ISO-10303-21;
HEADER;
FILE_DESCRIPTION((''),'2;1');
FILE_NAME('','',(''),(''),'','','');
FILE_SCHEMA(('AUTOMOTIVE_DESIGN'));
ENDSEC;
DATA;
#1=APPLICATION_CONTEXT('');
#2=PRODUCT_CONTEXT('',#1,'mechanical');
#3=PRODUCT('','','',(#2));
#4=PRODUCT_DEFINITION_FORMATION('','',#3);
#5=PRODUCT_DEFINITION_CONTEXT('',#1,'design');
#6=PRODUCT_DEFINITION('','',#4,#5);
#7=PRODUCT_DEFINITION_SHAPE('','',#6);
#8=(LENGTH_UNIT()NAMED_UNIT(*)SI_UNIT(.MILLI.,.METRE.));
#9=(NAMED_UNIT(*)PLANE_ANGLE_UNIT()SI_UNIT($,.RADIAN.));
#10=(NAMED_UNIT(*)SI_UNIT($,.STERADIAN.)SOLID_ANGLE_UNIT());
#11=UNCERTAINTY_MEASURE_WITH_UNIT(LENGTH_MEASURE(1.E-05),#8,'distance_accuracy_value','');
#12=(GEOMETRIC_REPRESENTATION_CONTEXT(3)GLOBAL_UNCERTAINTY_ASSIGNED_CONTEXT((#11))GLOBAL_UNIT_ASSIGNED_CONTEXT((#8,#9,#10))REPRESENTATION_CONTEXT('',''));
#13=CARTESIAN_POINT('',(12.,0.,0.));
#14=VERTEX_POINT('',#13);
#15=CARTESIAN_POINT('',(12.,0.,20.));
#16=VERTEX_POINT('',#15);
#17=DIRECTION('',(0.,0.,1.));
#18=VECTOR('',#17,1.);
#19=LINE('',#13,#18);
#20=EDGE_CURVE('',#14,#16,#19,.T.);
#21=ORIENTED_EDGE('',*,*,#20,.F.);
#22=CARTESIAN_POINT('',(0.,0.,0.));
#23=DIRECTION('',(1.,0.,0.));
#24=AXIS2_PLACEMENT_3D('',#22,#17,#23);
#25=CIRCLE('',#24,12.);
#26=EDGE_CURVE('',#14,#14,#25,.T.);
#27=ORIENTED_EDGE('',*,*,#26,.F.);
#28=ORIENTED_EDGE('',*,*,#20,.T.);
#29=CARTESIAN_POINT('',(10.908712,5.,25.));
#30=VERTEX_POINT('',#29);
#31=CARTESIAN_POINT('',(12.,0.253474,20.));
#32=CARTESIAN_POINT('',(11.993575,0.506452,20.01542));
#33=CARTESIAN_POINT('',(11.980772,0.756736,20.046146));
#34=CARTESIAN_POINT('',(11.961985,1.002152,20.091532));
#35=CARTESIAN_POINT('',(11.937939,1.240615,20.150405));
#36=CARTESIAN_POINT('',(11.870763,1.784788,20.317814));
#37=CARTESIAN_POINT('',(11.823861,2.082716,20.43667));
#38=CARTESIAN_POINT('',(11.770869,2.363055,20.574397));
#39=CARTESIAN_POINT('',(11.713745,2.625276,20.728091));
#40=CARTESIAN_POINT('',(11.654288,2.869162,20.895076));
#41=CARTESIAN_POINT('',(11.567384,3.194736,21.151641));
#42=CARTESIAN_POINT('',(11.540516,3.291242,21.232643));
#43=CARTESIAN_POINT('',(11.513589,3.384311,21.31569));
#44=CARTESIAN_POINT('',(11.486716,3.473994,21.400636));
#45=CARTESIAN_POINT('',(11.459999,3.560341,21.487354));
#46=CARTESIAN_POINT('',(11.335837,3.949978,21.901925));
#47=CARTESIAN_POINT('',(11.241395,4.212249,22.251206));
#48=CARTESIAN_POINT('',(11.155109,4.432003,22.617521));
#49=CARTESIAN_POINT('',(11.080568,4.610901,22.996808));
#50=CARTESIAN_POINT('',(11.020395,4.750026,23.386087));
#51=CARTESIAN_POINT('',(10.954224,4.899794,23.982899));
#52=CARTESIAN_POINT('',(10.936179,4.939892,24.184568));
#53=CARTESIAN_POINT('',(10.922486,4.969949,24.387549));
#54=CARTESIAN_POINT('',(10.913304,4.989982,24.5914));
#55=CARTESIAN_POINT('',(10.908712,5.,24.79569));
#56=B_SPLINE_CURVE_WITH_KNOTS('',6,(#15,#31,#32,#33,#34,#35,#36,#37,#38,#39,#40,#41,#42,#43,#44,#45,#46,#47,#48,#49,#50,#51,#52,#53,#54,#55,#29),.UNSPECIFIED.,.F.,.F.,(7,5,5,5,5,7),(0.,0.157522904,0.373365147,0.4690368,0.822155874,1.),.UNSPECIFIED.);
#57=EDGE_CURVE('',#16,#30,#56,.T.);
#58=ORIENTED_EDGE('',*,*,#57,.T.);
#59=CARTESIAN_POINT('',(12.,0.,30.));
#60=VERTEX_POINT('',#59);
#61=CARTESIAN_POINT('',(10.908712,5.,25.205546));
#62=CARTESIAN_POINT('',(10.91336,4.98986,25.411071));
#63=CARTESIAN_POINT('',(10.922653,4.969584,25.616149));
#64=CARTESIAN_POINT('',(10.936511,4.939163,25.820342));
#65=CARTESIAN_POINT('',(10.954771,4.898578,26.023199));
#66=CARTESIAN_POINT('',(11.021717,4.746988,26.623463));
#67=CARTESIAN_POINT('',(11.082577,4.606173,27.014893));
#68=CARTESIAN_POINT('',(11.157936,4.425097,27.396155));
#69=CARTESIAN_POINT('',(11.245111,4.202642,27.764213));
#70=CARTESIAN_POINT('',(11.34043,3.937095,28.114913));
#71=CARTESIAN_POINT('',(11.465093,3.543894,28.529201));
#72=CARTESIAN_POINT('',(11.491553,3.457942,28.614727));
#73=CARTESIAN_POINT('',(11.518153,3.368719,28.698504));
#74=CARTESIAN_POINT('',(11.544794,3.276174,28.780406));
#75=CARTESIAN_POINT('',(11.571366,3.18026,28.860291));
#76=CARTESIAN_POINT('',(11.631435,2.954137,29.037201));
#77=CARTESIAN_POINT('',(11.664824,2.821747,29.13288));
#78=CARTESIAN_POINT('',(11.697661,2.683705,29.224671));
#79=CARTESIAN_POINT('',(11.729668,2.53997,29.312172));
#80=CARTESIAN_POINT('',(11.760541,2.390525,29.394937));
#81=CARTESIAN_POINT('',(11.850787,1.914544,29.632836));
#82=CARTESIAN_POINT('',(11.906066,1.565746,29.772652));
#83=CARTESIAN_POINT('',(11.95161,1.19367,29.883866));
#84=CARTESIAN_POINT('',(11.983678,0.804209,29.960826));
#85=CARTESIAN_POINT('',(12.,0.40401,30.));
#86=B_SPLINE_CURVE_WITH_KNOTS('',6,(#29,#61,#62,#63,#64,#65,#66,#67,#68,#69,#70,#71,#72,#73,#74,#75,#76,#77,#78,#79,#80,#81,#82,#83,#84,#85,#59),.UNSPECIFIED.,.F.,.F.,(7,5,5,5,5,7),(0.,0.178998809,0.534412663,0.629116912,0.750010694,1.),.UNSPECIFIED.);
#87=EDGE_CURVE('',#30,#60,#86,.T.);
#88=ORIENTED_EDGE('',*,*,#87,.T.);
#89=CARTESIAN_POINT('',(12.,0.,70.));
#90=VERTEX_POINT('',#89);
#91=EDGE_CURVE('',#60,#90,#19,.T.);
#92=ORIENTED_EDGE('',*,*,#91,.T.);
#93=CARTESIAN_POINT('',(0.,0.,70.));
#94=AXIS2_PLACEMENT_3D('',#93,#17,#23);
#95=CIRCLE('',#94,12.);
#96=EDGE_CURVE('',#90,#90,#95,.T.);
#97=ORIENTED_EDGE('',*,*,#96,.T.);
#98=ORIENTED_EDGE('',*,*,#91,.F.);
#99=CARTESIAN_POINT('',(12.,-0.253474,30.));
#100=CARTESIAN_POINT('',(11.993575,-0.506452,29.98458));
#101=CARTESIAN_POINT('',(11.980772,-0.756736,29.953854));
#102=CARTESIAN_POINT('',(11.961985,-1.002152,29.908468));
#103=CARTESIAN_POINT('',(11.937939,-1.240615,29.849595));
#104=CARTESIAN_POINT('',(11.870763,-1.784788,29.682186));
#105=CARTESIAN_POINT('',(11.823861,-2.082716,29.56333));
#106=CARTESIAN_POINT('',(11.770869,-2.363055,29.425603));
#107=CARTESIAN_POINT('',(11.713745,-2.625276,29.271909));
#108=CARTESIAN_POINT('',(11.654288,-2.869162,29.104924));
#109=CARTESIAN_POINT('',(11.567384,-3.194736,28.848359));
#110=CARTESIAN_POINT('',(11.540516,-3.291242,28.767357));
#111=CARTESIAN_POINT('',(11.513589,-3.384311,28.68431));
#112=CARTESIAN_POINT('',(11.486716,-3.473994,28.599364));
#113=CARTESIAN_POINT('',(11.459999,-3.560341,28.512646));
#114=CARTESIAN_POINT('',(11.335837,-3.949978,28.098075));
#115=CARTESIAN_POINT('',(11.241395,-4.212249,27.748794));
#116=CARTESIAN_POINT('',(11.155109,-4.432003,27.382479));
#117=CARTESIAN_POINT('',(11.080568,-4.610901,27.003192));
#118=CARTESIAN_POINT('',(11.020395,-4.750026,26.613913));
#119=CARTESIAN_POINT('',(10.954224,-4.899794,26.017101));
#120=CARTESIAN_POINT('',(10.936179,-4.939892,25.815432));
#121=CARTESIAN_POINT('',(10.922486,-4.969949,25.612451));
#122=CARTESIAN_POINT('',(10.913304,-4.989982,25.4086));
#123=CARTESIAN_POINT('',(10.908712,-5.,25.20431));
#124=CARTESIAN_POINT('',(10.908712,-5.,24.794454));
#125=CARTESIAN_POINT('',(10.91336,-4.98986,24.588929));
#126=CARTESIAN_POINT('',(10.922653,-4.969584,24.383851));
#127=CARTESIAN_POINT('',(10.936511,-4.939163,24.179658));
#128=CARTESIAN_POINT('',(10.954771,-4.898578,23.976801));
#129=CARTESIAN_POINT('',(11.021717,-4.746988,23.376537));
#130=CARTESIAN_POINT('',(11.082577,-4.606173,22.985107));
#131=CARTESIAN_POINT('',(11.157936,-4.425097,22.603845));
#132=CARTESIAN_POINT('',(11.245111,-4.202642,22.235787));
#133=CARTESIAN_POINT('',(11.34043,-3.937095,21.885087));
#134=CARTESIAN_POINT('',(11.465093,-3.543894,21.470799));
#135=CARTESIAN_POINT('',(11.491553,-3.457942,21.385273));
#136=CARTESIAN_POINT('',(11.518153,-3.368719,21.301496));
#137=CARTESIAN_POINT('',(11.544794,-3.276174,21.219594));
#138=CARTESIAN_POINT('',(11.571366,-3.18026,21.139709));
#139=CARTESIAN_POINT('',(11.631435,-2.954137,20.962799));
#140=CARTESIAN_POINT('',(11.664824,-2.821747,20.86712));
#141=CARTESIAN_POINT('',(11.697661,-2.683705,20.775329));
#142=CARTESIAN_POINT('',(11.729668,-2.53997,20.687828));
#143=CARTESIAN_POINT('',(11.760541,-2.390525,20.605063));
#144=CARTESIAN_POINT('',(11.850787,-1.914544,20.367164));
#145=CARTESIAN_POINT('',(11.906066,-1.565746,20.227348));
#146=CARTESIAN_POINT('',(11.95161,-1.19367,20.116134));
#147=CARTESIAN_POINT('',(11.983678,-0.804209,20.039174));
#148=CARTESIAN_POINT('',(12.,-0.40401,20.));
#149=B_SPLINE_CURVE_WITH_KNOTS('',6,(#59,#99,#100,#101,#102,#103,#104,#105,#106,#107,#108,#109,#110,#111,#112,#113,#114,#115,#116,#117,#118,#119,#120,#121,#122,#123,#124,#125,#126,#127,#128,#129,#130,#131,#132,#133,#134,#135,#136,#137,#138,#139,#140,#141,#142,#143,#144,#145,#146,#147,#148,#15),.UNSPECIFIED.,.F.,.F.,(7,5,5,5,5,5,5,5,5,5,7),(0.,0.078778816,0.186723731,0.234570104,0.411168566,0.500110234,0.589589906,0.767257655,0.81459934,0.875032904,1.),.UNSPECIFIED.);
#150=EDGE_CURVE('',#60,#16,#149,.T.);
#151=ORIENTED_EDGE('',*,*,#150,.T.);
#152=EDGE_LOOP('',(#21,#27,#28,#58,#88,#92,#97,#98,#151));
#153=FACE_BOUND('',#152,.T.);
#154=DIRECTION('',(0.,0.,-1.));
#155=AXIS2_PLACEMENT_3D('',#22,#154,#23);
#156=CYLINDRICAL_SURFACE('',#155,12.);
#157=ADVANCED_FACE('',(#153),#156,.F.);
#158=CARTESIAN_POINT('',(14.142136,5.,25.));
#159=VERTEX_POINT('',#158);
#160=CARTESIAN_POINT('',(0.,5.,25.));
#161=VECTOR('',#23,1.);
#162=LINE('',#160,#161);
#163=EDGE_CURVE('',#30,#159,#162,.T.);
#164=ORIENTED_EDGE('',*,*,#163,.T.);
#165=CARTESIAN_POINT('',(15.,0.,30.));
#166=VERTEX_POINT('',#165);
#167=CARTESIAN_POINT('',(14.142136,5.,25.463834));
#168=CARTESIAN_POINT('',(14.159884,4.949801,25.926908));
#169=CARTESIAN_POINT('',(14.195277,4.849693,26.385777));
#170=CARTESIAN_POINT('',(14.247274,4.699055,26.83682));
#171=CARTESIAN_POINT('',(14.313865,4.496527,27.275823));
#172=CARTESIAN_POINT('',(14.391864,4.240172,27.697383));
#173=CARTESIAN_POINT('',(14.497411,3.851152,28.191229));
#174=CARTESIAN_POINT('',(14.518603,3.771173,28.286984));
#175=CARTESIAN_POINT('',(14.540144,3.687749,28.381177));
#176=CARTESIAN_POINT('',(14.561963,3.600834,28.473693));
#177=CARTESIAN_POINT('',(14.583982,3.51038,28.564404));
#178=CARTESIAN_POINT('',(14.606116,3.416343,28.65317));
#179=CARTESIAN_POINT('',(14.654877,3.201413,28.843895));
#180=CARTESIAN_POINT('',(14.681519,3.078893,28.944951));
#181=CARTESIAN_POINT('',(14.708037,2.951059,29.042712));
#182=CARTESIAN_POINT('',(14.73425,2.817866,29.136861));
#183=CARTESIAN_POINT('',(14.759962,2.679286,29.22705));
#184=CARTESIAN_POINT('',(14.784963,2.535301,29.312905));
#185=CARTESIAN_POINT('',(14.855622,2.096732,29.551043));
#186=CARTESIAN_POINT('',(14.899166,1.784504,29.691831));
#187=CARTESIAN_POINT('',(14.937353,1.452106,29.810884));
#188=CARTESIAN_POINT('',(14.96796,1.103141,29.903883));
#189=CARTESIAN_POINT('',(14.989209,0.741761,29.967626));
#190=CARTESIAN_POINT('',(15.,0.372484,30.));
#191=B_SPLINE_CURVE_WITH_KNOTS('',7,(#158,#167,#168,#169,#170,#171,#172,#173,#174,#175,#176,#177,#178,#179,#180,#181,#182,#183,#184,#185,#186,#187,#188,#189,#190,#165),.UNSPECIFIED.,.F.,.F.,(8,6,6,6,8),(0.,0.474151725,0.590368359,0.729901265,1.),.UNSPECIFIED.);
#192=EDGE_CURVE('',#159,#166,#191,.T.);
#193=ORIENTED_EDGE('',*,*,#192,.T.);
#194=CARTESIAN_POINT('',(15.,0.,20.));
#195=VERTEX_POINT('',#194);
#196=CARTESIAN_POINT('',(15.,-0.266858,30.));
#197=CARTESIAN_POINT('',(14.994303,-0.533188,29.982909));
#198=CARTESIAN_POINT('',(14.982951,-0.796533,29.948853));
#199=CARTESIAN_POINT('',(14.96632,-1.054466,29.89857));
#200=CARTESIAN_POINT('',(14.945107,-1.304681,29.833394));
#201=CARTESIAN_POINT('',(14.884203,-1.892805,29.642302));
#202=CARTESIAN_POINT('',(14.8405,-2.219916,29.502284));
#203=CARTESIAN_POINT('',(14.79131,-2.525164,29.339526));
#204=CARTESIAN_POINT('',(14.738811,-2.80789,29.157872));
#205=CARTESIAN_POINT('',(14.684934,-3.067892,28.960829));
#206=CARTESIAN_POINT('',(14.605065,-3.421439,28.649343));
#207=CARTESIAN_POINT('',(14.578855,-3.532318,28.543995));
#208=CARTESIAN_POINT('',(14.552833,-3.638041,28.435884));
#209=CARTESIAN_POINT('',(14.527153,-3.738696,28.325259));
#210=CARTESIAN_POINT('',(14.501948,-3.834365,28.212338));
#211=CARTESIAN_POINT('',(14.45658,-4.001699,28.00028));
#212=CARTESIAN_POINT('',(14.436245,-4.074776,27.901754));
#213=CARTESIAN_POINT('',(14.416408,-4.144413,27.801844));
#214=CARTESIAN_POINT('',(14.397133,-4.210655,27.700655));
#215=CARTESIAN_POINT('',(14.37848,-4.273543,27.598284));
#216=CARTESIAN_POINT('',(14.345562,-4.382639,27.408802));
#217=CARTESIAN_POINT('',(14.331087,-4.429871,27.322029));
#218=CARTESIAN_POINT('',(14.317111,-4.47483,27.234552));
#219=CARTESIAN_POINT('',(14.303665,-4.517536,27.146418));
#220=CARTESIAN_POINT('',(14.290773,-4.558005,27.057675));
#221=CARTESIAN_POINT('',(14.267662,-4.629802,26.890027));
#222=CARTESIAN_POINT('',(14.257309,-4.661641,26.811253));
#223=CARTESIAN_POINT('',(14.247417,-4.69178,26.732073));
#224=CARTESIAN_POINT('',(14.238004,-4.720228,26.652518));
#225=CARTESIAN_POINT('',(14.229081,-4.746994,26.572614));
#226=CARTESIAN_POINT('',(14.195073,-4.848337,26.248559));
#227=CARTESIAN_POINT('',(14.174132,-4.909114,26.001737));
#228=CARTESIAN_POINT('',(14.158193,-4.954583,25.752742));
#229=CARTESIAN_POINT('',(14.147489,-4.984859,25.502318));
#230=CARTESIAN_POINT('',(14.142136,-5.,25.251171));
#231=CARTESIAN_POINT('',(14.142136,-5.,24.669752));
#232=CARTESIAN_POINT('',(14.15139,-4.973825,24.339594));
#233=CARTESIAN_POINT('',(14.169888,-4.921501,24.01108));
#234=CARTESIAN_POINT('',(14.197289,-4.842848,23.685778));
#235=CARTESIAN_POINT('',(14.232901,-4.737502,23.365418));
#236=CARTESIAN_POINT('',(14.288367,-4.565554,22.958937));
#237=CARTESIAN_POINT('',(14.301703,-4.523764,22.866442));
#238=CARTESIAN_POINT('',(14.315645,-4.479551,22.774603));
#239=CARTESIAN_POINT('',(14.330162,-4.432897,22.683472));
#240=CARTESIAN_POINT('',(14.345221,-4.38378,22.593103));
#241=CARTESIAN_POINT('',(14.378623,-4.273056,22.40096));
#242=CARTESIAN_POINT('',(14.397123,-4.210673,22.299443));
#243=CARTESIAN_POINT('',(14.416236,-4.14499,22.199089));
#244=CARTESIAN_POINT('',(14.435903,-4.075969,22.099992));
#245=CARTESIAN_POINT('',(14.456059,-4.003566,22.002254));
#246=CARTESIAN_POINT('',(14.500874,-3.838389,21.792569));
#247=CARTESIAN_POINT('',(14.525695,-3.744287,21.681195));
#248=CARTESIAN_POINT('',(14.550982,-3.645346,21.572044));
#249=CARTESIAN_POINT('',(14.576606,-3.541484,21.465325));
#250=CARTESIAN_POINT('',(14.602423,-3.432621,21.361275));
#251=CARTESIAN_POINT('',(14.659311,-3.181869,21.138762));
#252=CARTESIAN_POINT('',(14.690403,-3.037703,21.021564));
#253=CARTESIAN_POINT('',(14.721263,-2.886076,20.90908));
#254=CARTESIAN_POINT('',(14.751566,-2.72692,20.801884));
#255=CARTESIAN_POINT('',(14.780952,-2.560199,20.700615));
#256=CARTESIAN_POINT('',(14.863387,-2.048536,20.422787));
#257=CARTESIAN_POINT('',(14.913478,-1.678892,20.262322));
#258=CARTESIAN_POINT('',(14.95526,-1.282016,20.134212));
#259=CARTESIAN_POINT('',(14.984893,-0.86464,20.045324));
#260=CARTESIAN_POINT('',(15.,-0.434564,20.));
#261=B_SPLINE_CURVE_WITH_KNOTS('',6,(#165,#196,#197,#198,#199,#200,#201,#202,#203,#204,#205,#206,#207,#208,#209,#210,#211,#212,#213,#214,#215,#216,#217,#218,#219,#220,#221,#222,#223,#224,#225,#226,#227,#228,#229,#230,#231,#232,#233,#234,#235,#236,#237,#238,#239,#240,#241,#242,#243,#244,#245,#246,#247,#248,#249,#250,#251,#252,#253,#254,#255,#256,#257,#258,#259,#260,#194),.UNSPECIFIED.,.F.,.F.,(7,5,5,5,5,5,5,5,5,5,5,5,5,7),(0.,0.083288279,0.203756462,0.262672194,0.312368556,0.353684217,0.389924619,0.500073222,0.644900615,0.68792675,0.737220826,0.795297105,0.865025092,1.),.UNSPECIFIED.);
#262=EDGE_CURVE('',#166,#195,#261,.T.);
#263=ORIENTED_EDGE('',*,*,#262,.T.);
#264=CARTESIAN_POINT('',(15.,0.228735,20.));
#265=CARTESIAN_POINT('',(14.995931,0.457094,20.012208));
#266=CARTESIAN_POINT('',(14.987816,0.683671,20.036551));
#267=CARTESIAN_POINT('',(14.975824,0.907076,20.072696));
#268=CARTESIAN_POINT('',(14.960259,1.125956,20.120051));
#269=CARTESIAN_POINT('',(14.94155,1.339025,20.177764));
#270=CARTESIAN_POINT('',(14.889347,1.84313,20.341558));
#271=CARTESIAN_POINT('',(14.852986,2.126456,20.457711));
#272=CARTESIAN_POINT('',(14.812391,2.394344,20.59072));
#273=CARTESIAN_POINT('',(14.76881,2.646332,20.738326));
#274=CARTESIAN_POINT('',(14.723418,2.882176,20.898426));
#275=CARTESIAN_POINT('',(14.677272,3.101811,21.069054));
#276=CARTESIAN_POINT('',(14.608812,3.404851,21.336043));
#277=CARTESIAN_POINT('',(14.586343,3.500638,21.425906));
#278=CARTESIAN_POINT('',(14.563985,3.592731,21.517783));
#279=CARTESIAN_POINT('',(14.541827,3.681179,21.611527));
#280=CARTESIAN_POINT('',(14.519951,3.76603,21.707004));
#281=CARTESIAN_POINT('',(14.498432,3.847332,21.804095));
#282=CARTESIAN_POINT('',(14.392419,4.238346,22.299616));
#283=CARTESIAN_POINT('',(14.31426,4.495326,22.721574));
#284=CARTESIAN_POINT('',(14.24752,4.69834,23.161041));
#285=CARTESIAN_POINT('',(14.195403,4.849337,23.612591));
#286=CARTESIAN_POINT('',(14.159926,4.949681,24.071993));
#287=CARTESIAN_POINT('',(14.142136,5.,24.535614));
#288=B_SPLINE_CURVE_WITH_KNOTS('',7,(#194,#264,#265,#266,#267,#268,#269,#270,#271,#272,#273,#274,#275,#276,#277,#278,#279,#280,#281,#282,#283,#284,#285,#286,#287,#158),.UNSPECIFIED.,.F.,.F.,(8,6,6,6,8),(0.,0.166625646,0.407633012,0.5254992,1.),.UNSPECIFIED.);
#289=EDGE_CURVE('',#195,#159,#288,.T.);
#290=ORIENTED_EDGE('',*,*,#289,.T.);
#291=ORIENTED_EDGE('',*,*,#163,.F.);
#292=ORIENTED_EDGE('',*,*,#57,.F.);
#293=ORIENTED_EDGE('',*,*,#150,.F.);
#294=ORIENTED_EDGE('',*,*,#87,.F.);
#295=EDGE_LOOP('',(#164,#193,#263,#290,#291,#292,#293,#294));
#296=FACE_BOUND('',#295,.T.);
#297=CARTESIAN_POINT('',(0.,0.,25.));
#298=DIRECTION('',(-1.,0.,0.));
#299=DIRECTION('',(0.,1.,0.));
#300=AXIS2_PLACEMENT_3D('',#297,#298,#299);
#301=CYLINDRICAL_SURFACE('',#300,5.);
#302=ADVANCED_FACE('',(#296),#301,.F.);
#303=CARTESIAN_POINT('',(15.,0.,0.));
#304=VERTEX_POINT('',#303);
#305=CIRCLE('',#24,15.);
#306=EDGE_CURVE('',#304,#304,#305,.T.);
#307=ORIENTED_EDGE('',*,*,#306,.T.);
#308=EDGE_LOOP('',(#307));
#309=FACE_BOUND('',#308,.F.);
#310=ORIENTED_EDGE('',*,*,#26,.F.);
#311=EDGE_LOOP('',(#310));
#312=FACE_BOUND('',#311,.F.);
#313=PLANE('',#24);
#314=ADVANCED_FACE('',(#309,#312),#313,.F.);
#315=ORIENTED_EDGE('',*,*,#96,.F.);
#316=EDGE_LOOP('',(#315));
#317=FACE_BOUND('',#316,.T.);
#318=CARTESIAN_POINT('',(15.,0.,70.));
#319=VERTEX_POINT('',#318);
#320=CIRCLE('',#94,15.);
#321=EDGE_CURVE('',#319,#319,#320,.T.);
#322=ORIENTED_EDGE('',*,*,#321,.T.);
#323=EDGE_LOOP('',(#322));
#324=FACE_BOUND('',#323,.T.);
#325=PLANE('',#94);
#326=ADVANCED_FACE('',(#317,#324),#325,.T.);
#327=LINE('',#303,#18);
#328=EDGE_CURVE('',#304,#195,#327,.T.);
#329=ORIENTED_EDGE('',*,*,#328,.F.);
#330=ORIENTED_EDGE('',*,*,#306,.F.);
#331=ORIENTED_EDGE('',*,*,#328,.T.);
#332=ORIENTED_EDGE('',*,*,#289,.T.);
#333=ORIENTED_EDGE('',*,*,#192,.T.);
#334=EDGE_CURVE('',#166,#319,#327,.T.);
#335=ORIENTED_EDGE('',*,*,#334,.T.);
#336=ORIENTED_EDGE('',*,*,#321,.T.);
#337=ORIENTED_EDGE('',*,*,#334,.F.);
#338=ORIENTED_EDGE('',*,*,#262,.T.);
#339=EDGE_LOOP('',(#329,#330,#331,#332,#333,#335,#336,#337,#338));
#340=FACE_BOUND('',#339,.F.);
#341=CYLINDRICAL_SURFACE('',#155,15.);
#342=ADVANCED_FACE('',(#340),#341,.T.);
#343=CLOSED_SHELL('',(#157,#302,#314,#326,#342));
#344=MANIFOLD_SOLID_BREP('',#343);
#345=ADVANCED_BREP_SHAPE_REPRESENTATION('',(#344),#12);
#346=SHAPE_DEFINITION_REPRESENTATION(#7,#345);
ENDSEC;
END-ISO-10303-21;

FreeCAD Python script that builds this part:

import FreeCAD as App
import Part
import Sketcher
from FreeCAD import Vector
Q = App.Units.Quantity

doc = App.newDocument("Part")
params = doc.addObject("Spreadsheet::Sheet", "Params")
for row, (alias, value) in enumerate([
    ("sketch1_diameter", "30 mm"),
    ("sketch1_diameter2", "24 mm"),
    ("pad1_length", "70 mm"),
    ("sketch2_diameter", "10 mm"),
], start=1):
    params.set(f"A{row}", alias)
    params.set(f"B{row}", "=" + value)
    params.setAlias(f"B{row}", alias)

body = doc.addObject("PartDesign::Body", "Body")

# Sketch on XY plane
sketch1 = doc.addObject("Sketcher::SketchObject", "Sketch")
body.addObject(sketch1)
sketch1.AttachmentSupport = (doc.XY_Plane, [""])
sketch1.MapMode = "FlatFace"
sketch1.addGeometry(Part.Circle(Vector(0, 0, 0), Vector(0, 0, 1), 15), False)
sketch1.addGeometry(Part.Circle(Vector(0, 0, 0), Vector(0, 0, 1), 12), False)
sketch1.addConstraint(Sketcher.Constraint("Coincident", 0, 3, -1, 1))
sketch1.addConstraint(Sketcher.Constraint("Coincident", 1, 3, -1, 1))
sketch1.addConstraint(Sketcher.Constraint("Diameter", 0, Q("30 mm")))
sketch1.addConstraint(Sketcher.Constraint("Diameter", 1, Q("24 mm")))
sketch1.setExpression("Constraints[2]", "Params.sketch1_diameter")
sketch1.setExpression("Constraints[3]", "Params.sketch1_diameter2")
pad1 = doc.addObject("PartDesign::Pad", "Pad")
body.addObject(pad1)
pad1.Profile = sketch1
pad1.setExpression("Length", "Params.pad1_length")

# Sketch on YZ plane
sketch2 = doc.addObject("Sketcher::SketchObject", "Sketch001")
body.addObject(sketch2)
sketch2.AttachmentSupport = (doc.YZ_Plane, [""])
sketch2.MapMode = "FlatFace"
sketch2.addGeometry(Part.Circle(Vector(0, 25, 0), Vector(0, 0, 1), 5), False)
sketch2.addConstraint(Sketcher.Constraint("PointOnObject", 0, 3, -2))
sketch2.addConstraint(Sketcher.Constraint("Diameter", 0, Q("10 mm")))
sketch2.addConstraint(Sketcher.Constraint("DistanceY", -1, 1, 0, 3, Q("25 mm")))
sketch2.setExpression("Constraints[1]", "Params.sketch2_diameter")
pocket1 = doc.addObject("PartDesign::Pocket", "Pocket")
body.addObject(pocket1)
pocket1.Profile = sketch2
pocket1.Type = "ThroughAll"
pocket1.Reversed = True

doc.recompute()
